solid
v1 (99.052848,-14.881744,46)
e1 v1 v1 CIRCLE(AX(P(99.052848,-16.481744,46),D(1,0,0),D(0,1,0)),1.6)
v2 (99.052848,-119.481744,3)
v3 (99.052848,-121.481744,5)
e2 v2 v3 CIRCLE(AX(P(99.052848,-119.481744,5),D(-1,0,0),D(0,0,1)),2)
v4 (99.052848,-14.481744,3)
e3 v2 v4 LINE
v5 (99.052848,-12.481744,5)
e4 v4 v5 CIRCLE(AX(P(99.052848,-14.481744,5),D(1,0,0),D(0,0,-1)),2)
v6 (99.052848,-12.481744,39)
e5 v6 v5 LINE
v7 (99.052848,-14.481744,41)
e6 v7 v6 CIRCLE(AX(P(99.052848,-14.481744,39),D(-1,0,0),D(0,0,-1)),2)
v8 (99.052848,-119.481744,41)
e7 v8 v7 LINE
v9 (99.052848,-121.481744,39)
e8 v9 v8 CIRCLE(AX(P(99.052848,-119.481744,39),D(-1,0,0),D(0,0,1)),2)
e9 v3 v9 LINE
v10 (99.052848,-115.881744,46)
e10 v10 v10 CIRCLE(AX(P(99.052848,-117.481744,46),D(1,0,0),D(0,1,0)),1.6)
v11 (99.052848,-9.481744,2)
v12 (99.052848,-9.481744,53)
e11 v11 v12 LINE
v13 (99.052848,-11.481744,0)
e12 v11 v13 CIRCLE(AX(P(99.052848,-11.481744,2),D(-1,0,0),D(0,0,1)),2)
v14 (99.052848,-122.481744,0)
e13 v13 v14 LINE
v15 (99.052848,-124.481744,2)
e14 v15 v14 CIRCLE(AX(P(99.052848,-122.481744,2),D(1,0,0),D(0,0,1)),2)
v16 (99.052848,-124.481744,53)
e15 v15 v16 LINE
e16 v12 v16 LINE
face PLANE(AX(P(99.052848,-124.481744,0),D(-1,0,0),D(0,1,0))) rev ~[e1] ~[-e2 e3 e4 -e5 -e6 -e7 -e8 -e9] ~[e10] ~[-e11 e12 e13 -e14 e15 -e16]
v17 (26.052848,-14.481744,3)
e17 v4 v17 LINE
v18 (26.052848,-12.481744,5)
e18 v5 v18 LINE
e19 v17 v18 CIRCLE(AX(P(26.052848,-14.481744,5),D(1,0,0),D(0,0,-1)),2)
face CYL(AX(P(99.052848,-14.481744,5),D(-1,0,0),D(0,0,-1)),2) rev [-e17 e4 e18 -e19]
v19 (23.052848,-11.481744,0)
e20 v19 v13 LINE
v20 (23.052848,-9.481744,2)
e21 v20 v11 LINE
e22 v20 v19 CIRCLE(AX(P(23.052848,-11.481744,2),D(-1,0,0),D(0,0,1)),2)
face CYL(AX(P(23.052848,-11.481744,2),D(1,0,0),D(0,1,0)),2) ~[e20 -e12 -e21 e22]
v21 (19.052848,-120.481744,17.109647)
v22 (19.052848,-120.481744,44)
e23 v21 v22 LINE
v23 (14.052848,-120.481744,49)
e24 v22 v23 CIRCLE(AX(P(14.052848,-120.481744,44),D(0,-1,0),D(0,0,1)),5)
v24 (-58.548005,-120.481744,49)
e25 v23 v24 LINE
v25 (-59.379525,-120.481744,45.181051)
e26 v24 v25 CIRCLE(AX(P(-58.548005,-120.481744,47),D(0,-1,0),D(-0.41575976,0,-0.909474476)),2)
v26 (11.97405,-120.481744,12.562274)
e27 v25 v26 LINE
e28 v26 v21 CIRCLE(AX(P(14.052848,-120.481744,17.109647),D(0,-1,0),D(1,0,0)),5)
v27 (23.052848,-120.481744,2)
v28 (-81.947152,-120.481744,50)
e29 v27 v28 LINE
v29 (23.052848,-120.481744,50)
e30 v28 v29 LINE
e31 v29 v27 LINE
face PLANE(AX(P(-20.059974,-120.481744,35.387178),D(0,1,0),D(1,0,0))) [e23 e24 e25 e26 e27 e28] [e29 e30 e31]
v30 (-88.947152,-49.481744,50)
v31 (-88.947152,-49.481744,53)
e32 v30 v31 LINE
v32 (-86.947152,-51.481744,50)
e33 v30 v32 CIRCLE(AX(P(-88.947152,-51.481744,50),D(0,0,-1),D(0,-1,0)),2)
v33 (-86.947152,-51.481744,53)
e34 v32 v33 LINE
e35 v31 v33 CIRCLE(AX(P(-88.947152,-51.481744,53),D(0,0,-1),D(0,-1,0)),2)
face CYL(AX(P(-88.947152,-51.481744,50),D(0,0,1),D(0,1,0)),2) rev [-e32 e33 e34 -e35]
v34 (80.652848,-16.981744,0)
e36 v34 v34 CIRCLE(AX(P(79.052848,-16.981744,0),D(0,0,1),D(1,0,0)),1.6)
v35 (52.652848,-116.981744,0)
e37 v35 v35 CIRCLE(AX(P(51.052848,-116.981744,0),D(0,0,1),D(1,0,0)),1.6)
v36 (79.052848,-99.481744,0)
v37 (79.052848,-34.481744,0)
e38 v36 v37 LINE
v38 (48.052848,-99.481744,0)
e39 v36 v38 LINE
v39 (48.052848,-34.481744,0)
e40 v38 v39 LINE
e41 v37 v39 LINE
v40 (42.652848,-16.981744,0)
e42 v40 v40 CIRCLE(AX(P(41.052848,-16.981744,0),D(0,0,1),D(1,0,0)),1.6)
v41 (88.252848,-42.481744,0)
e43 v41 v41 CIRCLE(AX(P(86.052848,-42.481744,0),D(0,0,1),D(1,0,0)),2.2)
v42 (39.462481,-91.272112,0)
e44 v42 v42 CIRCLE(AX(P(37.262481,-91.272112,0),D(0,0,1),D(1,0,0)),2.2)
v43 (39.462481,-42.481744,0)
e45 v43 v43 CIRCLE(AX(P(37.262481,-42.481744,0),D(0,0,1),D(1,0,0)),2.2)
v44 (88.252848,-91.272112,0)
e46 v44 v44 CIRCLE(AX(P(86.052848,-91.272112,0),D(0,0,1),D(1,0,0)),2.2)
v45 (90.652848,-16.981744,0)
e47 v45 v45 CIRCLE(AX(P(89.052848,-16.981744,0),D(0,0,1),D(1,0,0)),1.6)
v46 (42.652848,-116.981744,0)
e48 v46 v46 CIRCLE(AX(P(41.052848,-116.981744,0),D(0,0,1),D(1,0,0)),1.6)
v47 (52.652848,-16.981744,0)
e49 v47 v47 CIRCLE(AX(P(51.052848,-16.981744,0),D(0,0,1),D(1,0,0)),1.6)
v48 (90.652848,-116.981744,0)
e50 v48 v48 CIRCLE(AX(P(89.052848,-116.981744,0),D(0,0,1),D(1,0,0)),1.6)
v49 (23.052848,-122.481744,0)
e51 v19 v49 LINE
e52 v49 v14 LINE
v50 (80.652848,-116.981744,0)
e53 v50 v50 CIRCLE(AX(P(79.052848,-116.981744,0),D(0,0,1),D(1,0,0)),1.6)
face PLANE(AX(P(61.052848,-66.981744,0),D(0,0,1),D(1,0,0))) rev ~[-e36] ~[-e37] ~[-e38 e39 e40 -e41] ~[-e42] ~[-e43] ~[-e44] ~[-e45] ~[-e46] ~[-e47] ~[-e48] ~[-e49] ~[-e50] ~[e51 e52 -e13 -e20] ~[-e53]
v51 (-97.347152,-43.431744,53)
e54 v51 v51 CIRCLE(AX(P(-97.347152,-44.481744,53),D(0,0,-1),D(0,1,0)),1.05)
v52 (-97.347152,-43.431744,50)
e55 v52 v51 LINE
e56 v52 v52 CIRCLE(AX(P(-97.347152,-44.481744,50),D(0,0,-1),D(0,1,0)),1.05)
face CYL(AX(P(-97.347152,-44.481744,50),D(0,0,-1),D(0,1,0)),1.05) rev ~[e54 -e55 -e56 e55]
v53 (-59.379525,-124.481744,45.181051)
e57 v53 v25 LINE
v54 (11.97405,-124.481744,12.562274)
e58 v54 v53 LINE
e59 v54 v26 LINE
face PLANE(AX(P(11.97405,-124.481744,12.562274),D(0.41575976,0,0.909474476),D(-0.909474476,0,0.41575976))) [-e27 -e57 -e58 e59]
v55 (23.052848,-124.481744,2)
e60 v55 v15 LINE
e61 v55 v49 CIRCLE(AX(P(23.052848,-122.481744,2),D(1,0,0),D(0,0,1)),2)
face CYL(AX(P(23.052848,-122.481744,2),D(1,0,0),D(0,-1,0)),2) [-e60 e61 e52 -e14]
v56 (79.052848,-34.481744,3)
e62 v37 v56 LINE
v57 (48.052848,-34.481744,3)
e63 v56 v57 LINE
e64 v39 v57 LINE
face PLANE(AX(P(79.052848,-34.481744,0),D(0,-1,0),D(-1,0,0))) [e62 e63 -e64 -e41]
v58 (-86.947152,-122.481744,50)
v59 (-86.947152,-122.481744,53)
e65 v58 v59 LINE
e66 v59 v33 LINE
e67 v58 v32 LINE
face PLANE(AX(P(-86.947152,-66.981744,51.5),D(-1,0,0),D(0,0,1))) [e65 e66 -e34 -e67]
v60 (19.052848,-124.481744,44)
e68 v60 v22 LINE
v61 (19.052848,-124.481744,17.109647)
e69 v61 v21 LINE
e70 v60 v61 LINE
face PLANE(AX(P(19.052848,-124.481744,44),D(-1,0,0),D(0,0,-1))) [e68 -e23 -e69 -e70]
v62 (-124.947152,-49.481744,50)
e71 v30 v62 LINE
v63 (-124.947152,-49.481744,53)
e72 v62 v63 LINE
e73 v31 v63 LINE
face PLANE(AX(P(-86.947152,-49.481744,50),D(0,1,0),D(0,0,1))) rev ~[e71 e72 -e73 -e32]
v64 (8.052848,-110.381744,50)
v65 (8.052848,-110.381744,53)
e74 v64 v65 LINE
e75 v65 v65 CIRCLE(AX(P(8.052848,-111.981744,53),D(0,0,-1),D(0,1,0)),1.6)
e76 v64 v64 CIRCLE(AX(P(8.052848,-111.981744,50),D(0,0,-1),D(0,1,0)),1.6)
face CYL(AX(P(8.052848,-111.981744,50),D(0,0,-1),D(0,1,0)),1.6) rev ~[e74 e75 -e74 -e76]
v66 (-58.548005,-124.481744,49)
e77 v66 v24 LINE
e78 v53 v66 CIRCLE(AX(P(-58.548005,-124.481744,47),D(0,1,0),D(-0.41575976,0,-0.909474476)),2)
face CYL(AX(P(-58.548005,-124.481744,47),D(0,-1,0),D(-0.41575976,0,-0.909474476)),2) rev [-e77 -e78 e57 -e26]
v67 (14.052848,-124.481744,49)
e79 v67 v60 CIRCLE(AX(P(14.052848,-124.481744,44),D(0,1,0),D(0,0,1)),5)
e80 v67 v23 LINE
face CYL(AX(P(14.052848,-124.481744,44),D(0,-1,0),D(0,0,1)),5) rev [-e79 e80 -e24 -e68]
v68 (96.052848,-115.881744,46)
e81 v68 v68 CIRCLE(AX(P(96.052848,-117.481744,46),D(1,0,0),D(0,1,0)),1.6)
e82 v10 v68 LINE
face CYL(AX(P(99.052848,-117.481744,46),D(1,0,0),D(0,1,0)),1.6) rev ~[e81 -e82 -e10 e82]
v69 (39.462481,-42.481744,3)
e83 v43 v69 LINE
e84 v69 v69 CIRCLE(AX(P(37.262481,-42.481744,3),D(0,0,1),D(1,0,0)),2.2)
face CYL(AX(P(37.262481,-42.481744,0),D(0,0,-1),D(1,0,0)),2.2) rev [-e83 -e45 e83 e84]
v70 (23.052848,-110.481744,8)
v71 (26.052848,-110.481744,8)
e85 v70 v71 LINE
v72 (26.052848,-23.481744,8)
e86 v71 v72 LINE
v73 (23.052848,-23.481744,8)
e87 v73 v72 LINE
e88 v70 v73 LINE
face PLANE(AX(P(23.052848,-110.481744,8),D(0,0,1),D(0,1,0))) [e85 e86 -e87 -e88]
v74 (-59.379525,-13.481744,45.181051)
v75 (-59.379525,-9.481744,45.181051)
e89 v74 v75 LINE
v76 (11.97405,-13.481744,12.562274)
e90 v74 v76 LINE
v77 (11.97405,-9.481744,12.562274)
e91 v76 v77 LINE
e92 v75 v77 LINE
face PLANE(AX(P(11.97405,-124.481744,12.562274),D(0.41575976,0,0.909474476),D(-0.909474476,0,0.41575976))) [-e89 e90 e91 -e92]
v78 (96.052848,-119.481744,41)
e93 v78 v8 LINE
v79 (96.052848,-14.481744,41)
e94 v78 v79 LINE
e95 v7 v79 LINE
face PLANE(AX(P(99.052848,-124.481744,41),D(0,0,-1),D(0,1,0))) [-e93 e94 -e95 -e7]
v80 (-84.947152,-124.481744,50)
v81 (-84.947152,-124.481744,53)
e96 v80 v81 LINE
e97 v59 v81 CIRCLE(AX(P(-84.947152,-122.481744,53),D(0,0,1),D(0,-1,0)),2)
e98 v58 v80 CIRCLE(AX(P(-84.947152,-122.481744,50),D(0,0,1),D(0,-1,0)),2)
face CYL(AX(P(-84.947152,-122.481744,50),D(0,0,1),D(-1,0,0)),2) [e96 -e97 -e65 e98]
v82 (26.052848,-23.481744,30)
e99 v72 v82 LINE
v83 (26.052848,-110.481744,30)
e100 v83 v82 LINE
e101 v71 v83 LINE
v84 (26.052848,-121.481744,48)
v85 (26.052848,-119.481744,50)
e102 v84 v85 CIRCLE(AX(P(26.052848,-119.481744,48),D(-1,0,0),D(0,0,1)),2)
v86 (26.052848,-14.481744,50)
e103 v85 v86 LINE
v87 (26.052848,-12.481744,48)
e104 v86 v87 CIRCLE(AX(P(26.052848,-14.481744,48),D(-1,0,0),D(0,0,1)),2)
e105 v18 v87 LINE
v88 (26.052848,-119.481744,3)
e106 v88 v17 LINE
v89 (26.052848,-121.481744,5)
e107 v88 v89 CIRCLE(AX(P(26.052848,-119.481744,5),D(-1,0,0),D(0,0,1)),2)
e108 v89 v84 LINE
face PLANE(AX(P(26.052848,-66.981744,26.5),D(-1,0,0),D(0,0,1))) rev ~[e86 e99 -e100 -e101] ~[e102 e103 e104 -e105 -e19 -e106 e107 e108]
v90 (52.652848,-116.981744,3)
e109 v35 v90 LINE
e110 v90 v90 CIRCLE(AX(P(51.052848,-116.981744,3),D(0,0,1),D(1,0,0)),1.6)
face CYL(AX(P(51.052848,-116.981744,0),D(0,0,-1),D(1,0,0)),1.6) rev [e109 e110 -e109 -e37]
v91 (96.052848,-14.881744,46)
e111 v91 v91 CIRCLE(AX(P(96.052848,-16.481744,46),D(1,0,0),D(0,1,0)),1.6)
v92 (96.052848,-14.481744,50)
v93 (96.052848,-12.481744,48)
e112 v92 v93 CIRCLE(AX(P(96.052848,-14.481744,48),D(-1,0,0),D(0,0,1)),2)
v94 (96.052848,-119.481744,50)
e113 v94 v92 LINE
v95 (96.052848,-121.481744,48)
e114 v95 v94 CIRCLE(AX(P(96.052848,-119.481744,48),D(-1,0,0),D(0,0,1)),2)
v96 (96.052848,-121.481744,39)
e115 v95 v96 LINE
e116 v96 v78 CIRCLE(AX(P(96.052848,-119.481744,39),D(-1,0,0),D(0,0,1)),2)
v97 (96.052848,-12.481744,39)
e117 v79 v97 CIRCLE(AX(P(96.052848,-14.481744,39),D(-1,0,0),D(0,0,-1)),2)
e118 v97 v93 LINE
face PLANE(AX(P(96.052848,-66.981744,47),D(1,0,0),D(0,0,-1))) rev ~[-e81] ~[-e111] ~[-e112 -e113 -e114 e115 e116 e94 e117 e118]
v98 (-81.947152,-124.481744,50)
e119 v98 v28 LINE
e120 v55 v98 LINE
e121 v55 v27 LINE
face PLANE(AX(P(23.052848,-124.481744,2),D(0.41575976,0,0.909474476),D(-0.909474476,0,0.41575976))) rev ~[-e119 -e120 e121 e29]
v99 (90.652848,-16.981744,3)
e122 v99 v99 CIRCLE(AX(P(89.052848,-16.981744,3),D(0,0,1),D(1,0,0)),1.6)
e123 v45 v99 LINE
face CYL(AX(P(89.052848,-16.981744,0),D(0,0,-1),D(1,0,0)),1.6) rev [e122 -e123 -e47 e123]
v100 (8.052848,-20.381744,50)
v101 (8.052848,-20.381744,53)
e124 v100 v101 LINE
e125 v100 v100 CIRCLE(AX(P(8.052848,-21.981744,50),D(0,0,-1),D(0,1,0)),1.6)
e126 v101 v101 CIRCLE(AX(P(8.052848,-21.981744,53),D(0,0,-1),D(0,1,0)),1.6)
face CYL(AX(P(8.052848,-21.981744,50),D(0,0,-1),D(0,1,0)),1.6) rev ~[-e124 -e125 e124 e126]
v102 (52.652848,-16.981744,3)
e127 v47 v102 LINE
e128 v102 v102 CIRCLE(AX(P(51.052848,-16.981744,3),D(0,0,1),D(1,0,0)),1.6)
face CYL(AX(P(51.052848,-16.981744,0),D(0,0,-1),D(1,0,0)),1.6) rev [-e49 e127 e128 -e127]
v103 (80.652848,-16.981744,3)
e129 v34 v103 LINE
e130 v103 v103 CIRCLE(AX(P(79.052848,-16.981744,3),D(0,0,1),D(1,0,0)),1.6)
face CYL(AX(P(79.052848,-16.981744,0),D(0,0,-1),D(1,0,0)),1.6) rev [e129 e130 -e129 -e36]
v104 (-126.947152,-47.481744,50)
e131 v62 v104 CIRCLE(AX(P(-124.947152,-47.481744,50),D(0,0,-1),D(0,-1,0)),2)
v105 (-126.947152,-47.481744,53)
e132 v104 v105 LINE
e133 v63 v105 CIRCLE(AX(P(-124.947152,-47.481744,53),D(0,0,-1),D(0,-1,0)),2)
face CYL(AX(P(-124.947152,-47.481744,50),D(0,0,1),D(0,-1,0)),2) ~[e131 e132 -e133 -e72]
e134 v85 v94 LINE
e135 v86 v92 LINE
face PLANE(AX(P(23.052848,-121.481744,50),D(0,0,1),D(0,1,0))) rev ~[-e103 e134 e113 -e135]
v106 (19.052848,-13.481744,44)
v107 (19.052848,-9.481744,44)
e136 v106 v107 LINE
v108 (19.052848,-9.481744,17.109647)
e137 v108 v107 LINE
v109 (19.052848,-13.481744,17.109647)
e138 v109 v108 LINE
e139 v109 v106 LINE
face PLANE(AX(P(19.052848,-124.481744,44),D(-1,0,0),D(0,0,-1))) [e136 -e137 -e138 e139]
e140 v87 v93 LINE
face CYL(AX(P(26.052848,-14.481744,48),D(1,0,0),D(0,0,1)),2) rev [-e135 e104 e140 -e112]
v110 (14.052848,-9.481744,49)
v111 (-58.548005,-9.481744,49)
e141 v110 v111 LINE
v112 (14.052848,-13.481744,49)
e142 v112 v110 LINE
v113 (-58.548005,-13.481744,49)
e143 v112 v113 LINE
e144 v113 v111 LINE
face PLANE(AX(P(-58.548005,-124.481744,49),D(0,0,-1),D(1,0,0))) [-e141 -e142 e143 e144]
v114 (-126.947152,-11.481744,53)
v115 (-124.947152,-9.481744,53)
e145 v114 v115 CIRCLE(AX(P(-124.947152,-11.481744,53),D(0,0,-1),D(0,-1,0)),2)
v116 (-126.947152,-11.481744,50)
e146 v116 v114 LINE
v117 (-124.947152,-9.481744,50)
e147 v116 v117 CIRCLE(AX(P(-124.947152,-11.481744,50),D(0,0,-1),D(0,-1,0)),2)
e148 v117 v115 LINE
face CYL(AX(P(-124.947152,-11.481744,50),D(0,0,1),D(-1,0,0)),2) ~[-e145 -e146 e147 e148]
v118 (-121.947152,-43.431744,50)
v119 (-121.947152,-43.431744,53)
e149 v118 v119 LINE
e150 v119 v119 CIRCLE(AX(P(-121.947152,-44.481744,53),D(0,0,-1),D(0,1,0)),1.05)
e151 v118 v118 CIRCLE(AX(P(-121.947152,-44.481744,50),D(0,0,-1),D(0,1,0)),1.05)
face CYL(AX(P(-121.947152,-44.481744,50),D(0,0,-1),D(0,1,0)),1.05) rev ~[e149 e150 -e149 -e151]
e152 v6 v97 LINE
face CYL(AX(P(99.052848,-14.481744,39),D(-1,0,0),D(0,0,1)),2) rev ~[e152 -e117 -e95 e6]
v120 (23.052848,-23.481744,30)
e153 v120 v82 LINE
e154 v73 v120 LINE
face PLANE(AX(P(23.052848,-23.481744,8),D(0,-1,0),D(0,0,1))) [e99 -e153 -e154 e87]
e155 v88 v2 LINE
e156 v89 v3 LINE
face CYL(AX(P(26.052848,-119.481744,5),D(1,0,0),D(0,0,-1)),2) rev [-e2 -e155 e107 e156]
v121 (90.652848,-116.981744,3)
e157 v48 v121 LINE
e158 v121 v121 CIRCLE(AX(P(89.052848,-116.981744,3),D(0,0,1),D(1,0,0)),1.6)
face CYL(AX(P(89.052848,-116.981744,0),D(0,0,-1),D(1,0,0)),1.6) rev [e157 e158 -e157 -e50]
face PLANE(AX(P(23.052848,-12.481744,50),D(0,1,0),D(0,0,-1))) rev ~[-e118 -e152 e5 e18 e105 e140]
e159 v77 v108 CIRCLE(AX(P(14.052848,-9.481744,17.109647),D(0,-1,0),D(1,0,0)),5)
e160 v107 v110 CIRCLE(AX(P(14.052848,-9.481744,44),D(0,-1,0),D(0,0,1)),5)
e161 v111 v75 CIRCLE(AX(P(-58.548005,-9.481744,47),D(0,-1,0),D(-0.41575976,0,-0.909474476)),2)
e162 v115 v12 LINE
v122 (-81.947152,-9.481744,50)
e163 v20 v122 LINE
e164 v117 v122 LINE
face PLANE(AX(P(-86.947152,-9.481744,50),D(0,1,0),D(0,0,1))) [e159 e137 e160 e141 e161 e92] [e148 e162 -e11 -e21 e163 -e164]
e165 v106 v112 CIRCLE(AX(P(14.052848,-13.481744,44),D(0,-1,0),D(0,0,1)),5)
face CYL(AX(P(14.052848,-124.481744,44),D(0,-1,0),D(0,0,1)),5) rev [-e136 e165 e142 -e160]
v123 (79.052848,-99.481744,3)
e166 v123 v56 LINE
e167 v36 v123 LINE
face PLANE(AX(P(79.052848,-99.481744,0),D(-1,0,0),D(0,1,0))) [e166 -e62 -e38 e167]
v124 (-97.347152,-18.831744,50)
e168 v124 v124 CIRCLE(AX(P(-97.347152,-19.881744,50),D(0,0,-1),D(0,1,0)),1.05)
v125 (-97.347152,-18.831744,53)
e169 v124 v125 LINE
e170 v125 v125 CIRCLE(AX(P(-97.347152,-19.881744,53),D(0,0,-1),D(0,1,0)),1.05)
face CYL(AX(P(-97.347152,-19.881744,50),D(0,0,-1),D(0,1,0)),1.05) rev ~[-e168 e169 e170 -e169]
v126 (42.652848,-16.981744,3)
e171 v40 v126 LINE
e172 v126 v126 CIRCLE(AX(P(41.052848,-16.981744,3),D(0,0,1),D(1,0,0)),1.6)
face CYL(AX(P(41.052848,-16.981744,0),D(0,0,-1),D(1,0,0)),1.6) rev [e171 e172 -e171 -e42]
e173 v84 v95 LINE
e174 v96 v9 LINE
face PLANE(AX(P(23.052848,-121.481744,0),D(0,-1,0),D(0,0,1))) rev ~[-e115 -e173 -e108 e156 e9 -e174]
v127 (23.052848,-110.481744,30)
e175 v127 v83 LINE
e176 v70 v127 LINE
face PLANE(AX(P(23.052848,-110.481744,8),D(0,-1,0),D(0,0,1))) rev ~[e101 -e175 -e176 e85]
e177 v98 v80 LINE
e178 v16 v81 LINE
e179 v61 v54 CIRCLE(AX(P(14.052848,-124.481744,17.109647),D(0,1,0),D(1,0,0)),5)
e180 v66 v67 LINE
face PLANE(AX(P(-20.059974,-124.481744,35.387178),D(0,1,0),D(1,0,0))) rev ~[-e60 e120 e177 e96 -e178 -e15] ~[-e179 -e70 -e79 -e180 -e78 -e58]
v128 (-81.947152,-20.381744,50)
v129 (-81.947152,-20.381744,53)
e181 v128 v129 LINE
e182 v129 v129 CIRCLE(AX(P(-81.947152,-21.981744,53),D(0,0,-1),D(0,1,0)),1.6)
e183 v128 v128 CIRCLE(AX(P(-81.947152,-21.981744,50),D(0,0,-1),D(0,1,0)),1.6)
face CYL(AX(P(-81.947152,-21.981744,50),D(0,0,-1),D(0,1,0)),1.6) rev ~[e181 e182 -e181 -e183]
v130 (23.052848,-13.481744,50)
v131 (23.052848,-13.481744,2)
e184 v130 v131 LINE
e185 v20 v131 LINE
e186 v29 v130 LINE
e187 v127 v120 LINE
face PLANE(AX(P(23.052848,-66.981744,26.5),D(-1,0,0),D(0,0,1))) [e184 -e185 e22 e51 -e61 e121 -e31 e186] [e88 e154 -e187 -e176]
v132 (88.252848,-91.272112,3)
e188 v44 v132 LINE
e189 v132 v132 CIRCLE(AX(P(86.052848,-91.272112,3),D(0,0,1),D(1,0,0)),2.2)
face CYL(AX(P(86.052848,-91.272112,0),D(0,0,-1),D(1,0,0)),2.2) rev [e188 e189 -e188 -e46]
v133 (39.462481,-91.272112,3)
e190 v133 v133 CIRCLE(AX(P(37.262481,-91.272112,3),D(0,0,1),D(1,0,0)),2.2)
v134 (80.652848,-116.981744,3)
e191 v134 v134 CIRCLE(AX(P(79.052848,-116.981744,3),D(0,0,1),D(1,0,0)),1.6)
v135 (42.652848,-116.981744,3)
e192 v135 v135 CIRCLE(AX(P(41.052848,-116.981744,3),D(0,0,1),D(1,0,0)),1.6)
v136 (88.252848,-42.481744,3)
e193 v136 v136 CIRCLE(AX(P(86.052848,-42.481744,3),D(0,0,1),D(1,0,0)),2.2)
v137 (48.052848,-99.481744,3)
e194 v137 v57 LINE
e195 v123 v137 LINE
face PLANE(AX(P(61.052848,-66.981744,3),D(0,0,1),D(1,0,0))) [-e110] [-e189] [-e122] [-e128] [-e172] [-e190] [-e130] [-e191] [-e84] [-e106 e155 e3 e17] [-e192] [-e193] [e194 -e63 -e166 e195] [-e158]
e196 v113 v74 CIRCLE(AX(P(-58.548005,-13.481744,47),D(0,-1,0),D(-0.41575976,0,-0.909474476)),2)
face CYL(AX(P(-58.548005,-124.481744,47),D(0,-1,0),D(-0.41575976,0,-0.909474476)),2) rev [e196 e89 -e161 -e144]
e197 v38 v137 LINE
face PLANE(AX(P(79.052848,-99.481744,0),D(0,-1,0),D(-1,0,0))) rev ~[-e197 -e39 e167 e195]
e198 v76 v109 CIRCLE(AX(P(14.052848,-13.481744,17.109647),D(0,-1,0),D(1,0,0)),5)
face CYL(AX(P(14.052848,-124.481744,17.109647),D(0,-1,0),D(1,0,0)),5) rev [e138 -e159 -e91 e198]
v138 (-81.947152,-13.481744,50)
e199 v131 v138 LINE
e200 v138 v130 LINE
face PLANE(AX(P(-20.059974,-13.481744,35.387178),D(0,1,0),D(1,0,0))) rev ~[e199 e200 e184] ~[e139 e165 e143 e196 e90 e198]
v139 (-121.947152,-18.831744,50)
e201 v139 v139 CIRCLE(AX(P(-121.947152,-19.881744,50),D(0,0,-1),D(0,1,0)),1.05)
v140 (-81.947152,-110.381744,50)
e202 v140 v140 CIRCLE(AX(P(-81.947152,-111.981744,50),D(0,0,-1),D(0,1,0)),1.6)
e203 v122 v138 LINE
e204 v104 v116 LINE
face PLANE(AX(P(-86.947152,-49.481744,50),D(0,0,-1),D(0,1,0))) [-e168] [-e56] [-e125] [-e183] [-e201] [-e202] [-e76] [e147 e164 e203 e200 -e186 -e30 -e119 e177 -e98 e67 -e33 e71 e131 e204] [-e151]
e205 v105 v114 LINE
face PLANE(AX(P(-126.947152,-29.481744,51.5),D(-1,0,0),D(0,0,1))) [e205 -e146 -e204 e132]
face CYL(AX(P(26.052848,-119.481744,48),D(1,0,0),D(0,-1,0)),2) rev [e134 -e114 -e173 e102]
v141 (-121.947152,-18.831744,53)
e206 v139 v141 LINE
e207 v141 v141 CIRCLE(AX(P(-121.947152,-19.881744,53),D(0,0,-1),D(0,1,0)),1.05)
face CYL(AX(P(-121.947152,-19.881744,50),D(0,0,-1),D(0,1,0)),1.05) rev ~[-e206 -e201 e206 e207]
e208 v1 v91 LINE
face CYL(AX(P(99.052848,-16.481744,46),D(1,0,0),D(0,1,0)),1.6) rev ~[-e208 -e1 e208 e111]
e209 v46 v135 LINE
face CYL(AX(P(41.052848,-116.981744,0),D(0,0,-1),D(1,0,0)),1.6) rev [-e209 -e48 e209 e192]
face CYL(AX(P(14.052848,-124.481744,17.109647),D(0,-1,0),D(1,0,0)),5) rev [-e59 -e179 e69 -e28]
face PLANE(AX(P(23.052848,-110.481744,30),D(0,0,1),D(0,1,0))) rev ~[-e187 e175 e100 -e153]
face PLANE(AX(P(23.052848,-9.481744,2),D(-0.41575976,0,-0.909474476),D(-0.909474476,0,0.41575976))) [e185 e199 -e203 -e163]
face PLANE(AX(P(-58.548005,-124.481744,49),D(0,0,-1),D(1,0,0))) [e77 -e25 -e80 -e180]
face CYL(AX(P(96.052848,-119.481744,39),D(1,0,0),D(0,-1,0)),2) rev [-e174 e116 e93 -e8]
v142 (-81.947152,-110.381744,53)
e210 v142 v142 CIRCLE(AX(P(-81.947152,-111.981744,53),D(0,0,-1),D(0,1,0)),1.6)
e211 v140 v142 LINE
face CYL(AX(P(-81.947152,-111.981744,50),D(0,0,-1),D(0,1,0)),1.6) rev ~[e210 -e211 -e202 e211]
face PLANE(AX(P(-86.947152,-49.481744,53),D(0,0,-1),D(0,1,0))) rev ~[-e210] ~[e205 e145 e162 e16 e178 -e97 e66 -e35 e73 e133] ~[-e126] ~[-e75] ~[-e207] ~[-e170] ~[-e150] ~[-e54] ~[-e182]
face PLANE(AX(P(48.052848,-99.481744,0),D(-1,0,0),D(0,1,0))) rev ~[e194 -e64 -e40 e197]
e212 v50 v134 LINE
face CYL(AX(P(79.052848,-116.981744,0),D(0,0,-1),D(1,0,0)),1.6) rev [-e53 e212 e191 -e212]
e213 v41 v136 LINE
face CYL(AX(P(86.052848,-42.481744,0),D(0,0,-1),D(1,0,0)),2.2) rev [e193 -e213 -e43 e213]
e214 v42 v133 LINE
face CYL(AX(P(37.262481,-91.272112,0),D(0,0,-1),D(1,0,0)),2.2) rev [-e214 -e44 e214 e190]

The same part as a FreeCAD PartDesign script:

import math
import FreeCAD as App
import Part
import Sketcher
Q = App.Units.Quantity


def edges_at(feature, points):
    """Names of the edges that pass closest to the given points."""
    edges = feature.Shape.Edges
    near = lambda p: min(range(len(edges)), key=lambda i: edges[i].distToShape(Part.Vertex(*p))[0])
    return sorted({f"Edge{near(p) + 1}" for p in points})


def add_polygon(sketch, points):
    """Adds a closed chain of lines whose ends are joined by coincident constraints."""
    first, n = sketch.GeometryCount, len(points)
    for a, b in zip(points, points[1:] + points[:1]):
        sketch.addGeometry(Part.LineSegment(App.Vector(*a, 0), App.Vector(*b, 0)), False)
    for i in range(n):
        sketch.addConstraint(Sketcher.Constraint("Coincident", first + i, 2, first + (i + 1) % n, 1))

doc = App.newDocument("Part")
body = doc.addObject("PartDesign::Body", "Body")

# Sketch on XY plane
sketch1 = body.newObject("Sketcher::SketchObject", "Sketch")
sketch1.AttachmentSupport = (doc.getObject("XY_Plane"), [""])
sketch1.MapMode = "FlatFace"
add_polygon(sketch1, [(23.1, -9.5), (23.1, -124.5), (99.1, -124.5), (99.1, -9.5)])  # lines 0-3
sketch1.addGeometry(Part.Circle(App.Vector(41.1, -117, 0), App.Vector(0, 0, 1), 1.6), False)  # 4
sketch1.addGeometry(Part.Circle(App.Vector(51.1, -117, 0), App.Vector(0, 0, 1), 1.6), False)  # 5
sketch1.addGeometry(Part.Circle(App.Vector(37.3, -91.3, 0), App.Vector(0, 0, 1), 2.2), False)  # 6
sketch1.addGeometry(Part.Circle(App.Vector(79.1, -117, 0), App.Vector(0, 0, 1), 1.6), False)  # 7
sketch1.addGeometry(Part.Circle(App.Vector(89.1, -117, 0), App.Vector(0, 0, 1), 1.6), False)  # 8
sketch1.addGeometry(Part.Circle(App.Vector(86.1, -91.3, 0), App.Vector(0, 0, 1), 2.2), False)  # 9
sketch1.addGeometry(Part.Circle(App.Vector(37.3, -42.5, 0), App.Vector(0, 0, 1), 2.2), False)  # 10
sketch1.addGeometry(Part.Circle(App.Vector(41.1, -17, 0), App.Vector(0, 0, 1), 1.6), False)  # 11
sketch1.addGeometry(Part.Circle(App.Vector(51.1, -17, 0), App.Vector(0, 0, 1), 1.6), False)  # 12
sketch1.addGeometry(Part.Circle(App.Vector(86.1, -42.5, 0), App.Vector(0, 0, 1), 2.2), False)  # 13
sketch1.addGeometry(Part.Circle(App.Vector(79.1, -17, 0), App.Vector(0, 0, 1), 1.6), False)  # 14
sketch1.addGeometry(Part.Circle(App.Vector(89.1, -17, 0), App.Vector(0, 0, 1), 1.6), False)  # 15
sketch1.addConstraint(Sketcher.Constraint("Vertical", 0))
sketch1.addConstraint(Sketcher.Constraint("Horizontal", 1))
sketch1.addConstraint(Sketcher.Constraint("Vertical", 2))
sketch1.addConstraint(Sketcher.Constraint("Horizontal", 3))
sketch1.addConstraint(Sketcher.Constraint("Equal", 4, 5))
sketch1.addConstraint(Sketcher.Constraint("Equal", 5, 7))
sketch1.addConstraint(Sketcher.Constraint("Equal", 7, 8))
sketch1.addConstraint(Sketcher.Constraint("Equal", 6, 9))
sketch1.addConstraint(Sketcher.Constraint("Equal", 9, 10))
sketch1.addConstraint(Sketcher.Constraint("Equal", 8, 11))
sketch1.addConstraint(Sketcher.Constraint("Equal", 11, 12))
sketch1.addConstraint(Sketcher.Constraint("Equal", 10, 13))
sketch1.addConstraint(Sketcher.Constraint("Equal", 12, 14))
sketch1.addConstraint(Sketcher.Constraint("Equal", 14, 15))
sketch1.addConstraint(Sketcher.Constraint("Horizontal", 4, 3, 5, 3))
sketch1.addConstraint(Sketcher.Constraint("Horizontal", 5, 3, 7, 3))
sketch1.addConstraint(Sketcher.Constraint("Horizontal", 7, 3, 8, 3))
sketch1.addConstraint(Sketcher.Constraint("Horizontal", 6, 3, 9, 3))
sketch1.addConstraint(Sketcher.Constraint("Horizontal", 11, 3, 12, 3))
sketch1.addConstraint(Sketcher.Constraint("Horizontal", 10, 3, 13, 3))
sketch1.addConstraint(Sketcher.Constraint("Horizontal", 12, 3, 14, 3))
sketch1.addConstraint(Sketcher.Constraint("Horizontal", 14, 3, 15, 3))
sketch1.addConstraint(Sketcher.Constraint("Vertical", 6, 3, 10, 3))
sketch1.addConstraint(Sketcher.Constraint("Vertical", 4, 3, 11, 3))
sketch1.addConstraint(Sketcher.Constraint("Vertical", 5, 3, 12, 3))
sketch1.addConstraint(Sketcher.Constraint("Vertical", 9, 3, 13, 3))
sketch1.addConstraint(Sketcher.Constraint("Vertical", 7, 3, 14, 3))
sketch1.addConstraint(Sketcher.Constraint("Vertical", 8, 3, 15, 3))
sketch1.addConstraint(Sketcher.Constraint("Diameter", 4, Q("3.2 mm")))
sketch1.addConstraint(Sketcher.Constraint("Diameter", 6, Q("4.4 mm")))
sketch1.addConstraint(Sketcher.Constraint("DistanceX", 1, 1, 1, 2, Q("76 mm")))
sketch1.addConstraint(Sketcher.Constraint("DistanceY", 0, 2, 0, 1, Q("115 mm")))
sketch1.addConstraint(Sketcher.Constraint("DistanceX", 4, 3, 5, 3, Q("10 mm")))
sketch1.addConstraint(Sketcher.Constraint("DistanceX", 5, 3, 7, 3, Q("28 mm")))
sketch1.addConstraint(Sketcher.Constraint("DistanceX", 7, 3, 8, 3, Q("10 mm")))
sketch1.addConstraint(Sketcher.Constraint("DistanceX", 9, 3, 8, 3, Q("3 mm")))
sketch1.addConstraint(Sketcher.Constraint("DistanceY", 4, 3, 11, 3, Q("100 mm")))
sketch1.addConstraint(Sketcher.Constraint("DistanceX", 0, 2, 4, 3, Q("18 mm")))
sketch1.addConstraint(Sketcher.Constraint("DistanceY", 13, 3, 2, 2, Q("33 mm")))
sketch1.addConstraint(Sketcher.Constraint("DistanceY", 4, 3, 10, 3, Q("74.5 mm")))
sketch1.addConstraint(Sketcher.Constraint("DistanceX", -1, 1, 4, 3, Q("41.052848 mm")))
sketch1.addConstraint(Sketcher.Constraint("DistanceX", -1, 1, 6, 3, Q("37.262481 mm")))
sketch1.addConstraint(Sketcher.Constraint("DistanceY", 6, 3, -1, 1, Q("91.272112 mm")))
sketch1.addConstraint(Sketcher.Constraint("DistanceY", 4, 3, -1, 1, Q("116.981744 mm")))
pad1 = body.newObject("PartDesign::Pad", "Pad")
pad1.Profile = sketch1
pad1.Length = 3

# Sketch on YZ plane
sketch2 = body.newObject("Sketcher::SketchObject", "Sketch001")
sketch2.AttachmentSupport = (doc.getObject("YZ_Plane"), [""])
sketch2.MapMode = "FlatFace"
sketch2.AttachmentOffset = App.Placement(App.Vector(0, 0, 23.052848), App.Rotation())
add_polygon(sketch2, [(-9.5, 53), (-9.5, 0), (-12.5, 0), (-12.5, 50), (-121.5, 50), (-121.5, 0), (-124.5, 0), (-124.5, 53)])  # lines 0-7
sketch2.addConstraint(Sketcher.Constraint("Vertical", 0))
sketch2.addConstraint(Sketcher.Constraint("Horizontal", 1))
sketch2.addConstraint(Sketcher.Constraint("Vertical", 2))
sketch2.addConstraint(Sketcher.Constraint("Horizontal", 3))
sketch2.addConstraint(Sketcher.Constraint("Vertical", 4))
sketch2.addConstraint(Sketcher.Constraint("Horizontal", 5))
sketch2.addConstraint(Sketcher.Constraint("Vertical", 6))
sketch2.addConstraint(Sketcher.Constraint("Horizontal", 7))
sketch2.addConstraint(Sketcher.Constraint("PointOnObject", 0, 2, -1))
sketch2.addConstraint(Sketcher.Constraint("PointOnObject", 4, 2, -1))
sketch2.addConstraint(Sketcher.Constraint("Equal", 1, 5))
sketch2.addConstraint(Sketcher.Constraint("DistanceX", 1, 2, 1, 1, Q("3 mm")))
sketch2.addConstraint(Sketcher.Constraint("DistanceX", 3, 2, 3, 1, Q("109 mm")))
sketch2.addConstraint(Sketcher.Constraint("DistanceY", 0, 2, 0, 1, Q("53 mm")))
sketch2.addConstraint(Sketcher.Constraint("DistanceY", 2, 1, 2, 2, Q("50 mm")))
sketch2.addConstraint(Sketcher.Constraint("DistanceX", 0, 2, -1, 1, Q("9.481744 mm")))
pad2 = body.newObject("PartDesign::Pad", "Pad001")
pad2.Profile = sketch2
pad2.Length = 76

# Sketch on YZ plane
sketch3 = body.newObject("Sketcher::SketchObject", "Sketch002")
sketch3.AttachmentSupport = (doc.getObject("YZ_Plane"), [""])
sketch3.MapMode = "FlatFace"
sketch3.AttachmentOffset = App.Placement(App.Vector(0, 0, 23.052848), App.Rotation())
add_polygon(sketch3, [(-12, 3), (-121, 3), (-121, 50), (-12, 50)])  # lines 0-3
sketch3.addConstraint(Sketcher.Constraint("Horizontal", 0))
sketch3.addConstraint(Sketcher.Constraint("Vertical", 1))
sketch3.addConstraint(Sketcher.Constraint("Horizontal", 2))
sketch3.addConstraint(Sketcher.Constraint("Vertical", 3))
sketch3.addConstraint(Sketcher.Constraint("DistanceX", 0, 2, 0, 1, Q("109 mm")))
sketch3.addConstraint(Sketcher.Constraint("DistanceY", 1, 1, 1, 2, Q("47 mm")))
sketch3.addConstraint(Sketcher.Constraint("DistanceY", -1, 1, 0, 2, Q("3 mm")))
sketch3.addConstraint(Sketcher.Constraint("DistanceX", 0, 2, -1, 1, Q("121.481744 mm")))
pad3 = body.newObject("PartDesign::Pad", "Pad002")
pad3.Profile = sketch3
pad3.Length = 3

# Sketch on YZ plane
sketch4 = body.newObject("Sketcher::SketchObject", "Sketch003")
sketch4.AttachmentSupport = (doc.getObject("YZ_Plane"), [""])
sketch4.MapMode = "FlatFace"
sketch4.AttachmentOffset = App.Placement(App.Vector(0, 0, 99.052848), App.Rotation())
add_polygon(sketch4, [(-9.5, 53), (-124.5, 53), (-124.5, 41), (-9.5, 41)])  # lines 0-3
sketch4.addGeometry(Part.Circle(App.Vector(-117.5, 46, 0), App.Vector(0, 0, 1), 1.6), False)  # 4
sketch4.addGeometry(Part.Circle(App.Vector(-16.5, 46, 0), App.Vector(0, 0, 1), 1.6), False)  # 5
sketch4.addConstraint(Sketcher.Constraint("Horizontal", 0))
sketch4.addConstraint(Sketcher.Constraint("Vertical", 1))
sketch4.addConstraint(Sketcher.Constraint("Horizontal", 2))
sketch4.addConstraint(Sketcher.Constraint("Vertical", 3))
sketch4.addConstraint(Sketcher.Constraint("Equal", 4, 5))
sketch4.addConstraint(Sketcher.Constraint("Horizontal", 4, 3, 5, 3))
sketch4.addConstraint(Sketcher.Constraint("Diameter", 4, Q("3.2 mm")))
sketch4.addConstraint(Sketcher.Constraint("DistanceX", 0, 2, 0, 1, Q("115 mm")))
sketch4.addConstraint(Sketcher.Constraint("DistanceY", 1, 2, 1, 1, Q("12 mm")))
sketch4.addConstraint(Sketcher.Constraint("DistanceY", -1, 1, 4, 3, Q("46 mm")))
sketch4.addConstraint(Sketcher.Constraint("DistanceY", -1, 1, 0, 2, Q("53 mm")))
sketch4.addConstraint(Sketcher.Constraint("DistanceX", 4, 3, 5, 3, Q("101 mm")))
sketch4.addConstraint(Sketcher.Constraint("DistanceX", 0, 2, 4, 3, Q("7 mm")))
sketch4.addConstraint(Sketcher.Constraint("DistanceX", 4, 3, -1, 1, Q("117.481744 mm")))
pad4 = body.newObject("PartDesign::Pad", "Pad003")
pad4.Profile = sketch4
pad4.Length = 3
pad4.Reversed = True
doc.recompute()

fillet = body.newObject("PartDesign::Fillet", "Fillet")
fillet.Base = (pad4, edges_at(pad4, [
    (62.553, -12.482, 3),
    (61.053, -12.482, 50),
    (61.053, -121.482, 50),
    (97.553, -121.482, 41),
    (97.553, -12.482, 41),
    (61.053, -9.482, 0),
    (61.053, -124.482, 0),
    (62.553, -121.482, 3),
]))
fillet.Radius = 2

# Sketch on YZ plane
sketch5 = body.newObject("Sketcher::SketchObject", "Sketch004")
sketch5.AttachmentSupport = (doc.getObject("YZ_Plane"), [""])
sketch5.MapMode = "FlatFace"
sketch5.AttachmentOffset = App.Placement(App.Vector(0, 0, 23.052848), App.Rotation())
add_polygon(sketch5, [(-9.5, 50), (-124.5, 50), (-124.5, 53), (-9.5, 53)])  # lines 0-3
sketch5.addConstraint(Sketcher.Constraint("Horizontal", 0))
sketch5.addConstraint(Sketcher.Constraint("Vertical", 1))
sketch5.addConstraint(Sketcher.Constraint("Horizontal", 2))
sketch5.addConstraint(Sketcher.Constraint("Vertical", 3))
sketch5.addConstraint(Sketcher.Constraint("DistanceX", 0, 2, 0, 1, Q("115 mm")))
sketch5.addConstraint(Sketcher.Constraint("DistanceY", 1, 1, 1, 2, Q("3 mm")))
sketch5.addConstraint(Sketcher.Constraint("DistanceY", -1, 1, 0, 2, Q("50 mm")))
sketch5.addConstraint(Sketcher.Constraint("DistanceX", 0, 2, -1, 1, Q("124.481744 mm")))
pad5 = body.newObject("PartDesign::Pad", "Pad004")
pad5.Profile = sketch5
pad5.Length = 110
pad5.Reversed = True

# Sketch on XY plane
sketch6 = body.newObject("Sketcher::SketchObject", "Sketch005")
sketch6.AttachmentSupport = (doc.getObject("XY_Plane"), [""])
sketch6.MapMode = "FlatFace"
sketch6.AttachmentOffset = App.Placement(App.Vector(0, 0, 50), App.Rotation())
sketch6.addGeometry(Part.Circle(App.Vector(-81.9, -22, 0), App.Vector(0, 0, 1), 1.6), False)
sketch6.addGeometry(Part.Circle(App.Vector(-81.9, -112, 0), App.Vector(0, 0, 1), 1.6), False)
sketch6.addGeometry(Part.Circle(App.Vector(8.1, -22, 0), App.Vector(0, 0, 1), 1.6), False)
sketch6.addGeometry(Part.Circle(App.Vector(8.1, -112, 0), App.Vector(0, 0, 1), 1.6), False)
sketch6.addConstraint(Sketcher.Constraint("Equal", 0, 1))
sketch6.addConstraint(Sketcher.Constraint("Equal", 1, 2))
sketch6.addConstraint(Sketcher.Constraint("Equal", 2, 3))
sketch6.addConstraint(Sketcher.Constraint("Horizontal", 0, 3, 2, 3))
sketch6.addConstraint(Sketcher.Constraint("Horizontal", 1, 3, 3, 3))
sketch6.addConstraint(Sketcher.Constraint("Vertical", 0, 3, 1, 3))
sketch6.addConstraint(Sketcher.Constraint("Vertical", 2, 3, 3, 3))
sketch6.addConstraint(Sketcher.Constraint("Diameter", 0, Q("3.2 mm")))
sketch6.addConstraint(Sketcher.Constraint("DistanceY", 1, 3, 0, 3, Q("90 mm")))
sketch6.addConstraint(Sketcher.Constraint("DistanceX", 0, 3, 2, 3, Q("90 mm")))
sketch6.addConstraint(Sketcher.Constraint("DistanceX", 0, 3, -1, 1, Q("81.947152 mm")))
sketch6.addConstraint(Sketcher.Constraint("DistanceY", 0, 3, -1, 1, Q("21.981744 mm")))
pocket1 = body.newObject("PartDesign::Pocket", "Pocket")
pocket1.Profile = sketch6
pocket1.Length = 110
pocket1.Reversed = True

# Sketch on XY plane
sketch7 = body.newObject("Sketcher::SketchObject", "Sketch006")
sketch7.AttachmentSupport = (doc.getObject("XY_Plane"), [""])
sketch7.MapMode = "FlatFace"
add_polygon(sketch7, [(79, -34), (79, -99), (48, -99), (48, -34)])  # lines 0-3
sketch7.addConstraint(Sketcher.Constraint("Vertical", 0))
sketch7.addConstraint(Sketcher.Constraint("Horizontal", 1))
sketch7.addConstraint(Sketcher.Constraint("Vertical", 2))
sketch7.addConstraint(Sketcher.Constraint("Horizontal", 3))
sketch7.addConstraint(Sketcher.Constraint("DistanceX", 1, 2, 1, 1, Q("31 mm")))
sketch7.addConstraint(Sketcher.Constraint("DistanceY", 0, 2, 0, 1, Q("65 mm")))
sketch7.addConstraint(Sketcher.Constraint("DistanceX", -1, 1, 0, 2, Q("79.052848 mm")))
sketch7.addConstraint(Sketcher.Constraint("DistanceY", 0, 2, -1, 1, Q("99.481744 mm")))
pocket2 = body.newObject("PartDesign::Pocket", "Pocket001")
pocket2.Profile = sketch7
pocket2.Length = 3
pocket2.Reversed = True

# Sketch on XZ plane
sketch8 = body.newObject("Sketcher::SketchObject", "Sketch007")
sketch8.AttachmentSupport = (doc.getObject("XZ_Plane"), [""])
sketch8.MapMode = "FlatFace"
sketch8.AttachmentOffset = App.Placement(App.Vector(0, 0, 124.481744), App.Rotation())
add_polygon(sketch8, [(-82, 50), (23, 2), (23, 50)])  # lines 0-2
sketch8.addConstraint(Sketcher.Constraint("Vertical", 1))
sketch8.addConstraint(Sketcher.Constraint("Horizontal", 2))
sketch8.addConstraint(Sketcher.Constraint("DistanceX", 2, 2, 2, 1, Q("105 mm")))
sketch8.addConstraint(Sketcher.Constraint("DistanceY", 1, 1, 1, 2, Q("48 mm")))
sketch8.addConstraint(Sketcher.Constraint("DistanceY", -1, 1, 0, 2, Q("2 mm")))
sketch8.addConstraint(Sketcher.Constraint("DistanceX", -1, 1, 0, 2, Q("23.052848 mm")))
pad6 = body.newObject("PartDesign::Pad", "Pad005")
pad6.Profile = sketch8
pad6.Length = 4
pad6.Reversed = True

# Sketch on XZ plane
sketch9 = body.newObject("Sketcher::SketchObject", "Sketch008")
sketch9.AttachmentSupport = (doc.getObject("XZ_Plane"), [""])
sketch9.MapMode = "FlatFace"
sketch9.AttachmentOffset = App.Placement(App.Vector(0, 0, 9.481744), App.Rotation())
add_polygon(sketch9, [(23, 2), (-82, 50), (23, 50)])  # lines 0-2
sketch9.addConstraint(Sketcher.Constraint("Horizontal", 1))
sketch9.addConstraint(Sketcher.Constraint("Vertical", 2))
sketch9.addConstraint(Sketcher.Constraint("DistanceX", 1, 1, 1, 2, Q("105 mm")))
sketch9.addConstraint(Sketcher.Constraint("DistanceY", 2, 2, 2, 1, Q("48 mm")))
sketch9.addConstraint(Sketcher.Constraint("DistanceY", -1, 1, 0, 2, Q("50 mm")))
sketch9.addConstraint(Sketcher.Constraint("DistanceX", 0, 2, -1, 1, Q("81.947152 mm")))
pad7 = body.newObject("PartDesign::Pad", "Pad006")
pad7.Profile = sketch9
pad7.Length = 4

# Sketch on XZ plane
sketch10 = body.newObject("Sketcher::SketchObject", "Sketch009")
sketch10.AttachmentSupport = (doc.getObject("XZ_Plane"), [""])
sketch10.MapMode = "FlatFace"
sketch10.AttachmentOffset = App.Placement(App.Vector(0, 0, 124.481744), App.Rotation())
sketch10.addGeometry(Part.LineSegment(App.Vector(14.1, 49, 0), App.Vector(-58.5, 49, 0)), False)
sketch10.addGeometry(Part.ArcOfCircle(Part.Circle(App.Vector(-58.5, 47, 0), App.Vector(0, 0, 1), 2), math.radians(90), math.radians(245)), False)
sketch10.addGeometry(Part.LineSegment(App.Vector(-59.4, 45.2, 0), App.Vector(12, 12.6, 0)), False)
sketch10.addGeometry(Part.ArcOfCircle(Part.Circle(App.Vector(14.1, 17.1, 0), App.Vector(0, 0, 1), 5), math.radians(-115), math.radians(0)), False)
sketch10.addGeometry(Part.LineSegment(App.Vector(19.1, 17.1, 0), App.Vector(19.1, 44, 0)), False)
sketch10.addGeometry(Part.ArcOfCircle(Part.Circle(App.Vector(14.1, 44, 0), App.Vector(0, 0, 1), 5), math.radians(0), math.radians(90)), False)
sketch10.addConstraint(Sketcher.Constraint("Tangent", 0, 2, 1, 1))
sketch10.addConstraint(Sketcher.Constraint("Tangent", 1, 2, 2, 1))
sketch10.addConstraint(Sketcher.Constraint("Tangent", 2, 2, 3, 1))
sketch10.addConstraint(Sketcher.Constraint("Tangent", 3, 2, 4, 1))
sketch10.addConstraint(Sketcher.Constraint("Tangent", 4, 2, 5, 1))
sketch10.addConstraint(Sketcher.Constraint("Tangent", 5, 2, 0, 1))
sketch10.addConstraint(Sketcher.Constraint("Horizontal", 0))
sketch10.addConstraint(Sketcher.Constraint("Vertical", 4))
sketch10.addConstraint(Sketcher.Constraint("Equal", 3, 5))
sketch10.addConstraint(Sketcher.Constraint("Radius", 1, Q("2 mm")))
sketch10.addConstraint(Sketcher.Constraint("Radius", 3, Q("5 mm")))
sketch10.addConstraint(Sketcher.Constraint("DistanceY", -1, 1, 1, 3, Q("47 mm")))
sketch10.addConstraint(Sketcher.Constraint("DistanceX", 2, 2, 3, 3, Q("2.078799 mm")))
sketch10.addConstraint(Sketcher.Constraint("Distance", 2, Q("78.45583 mm")))
sketch10.addConstraint(Sketcher.Constraint("DistanceX", -1, 1, 3, 3, Q("14.052848 mm")))
pocket3 = body.newObject("PartDesign::Pocket", "Pocket002")
pocket3.Profile = sketch10
pocket3.Length = 124

# Sketch on YZ plane
sketch11 = body.newObject("Sketcher::SketchObject", "Sketch010")
sketch11.AttachmentSupport = (doc.getObject("YZ_Plane"), [""])
sketch11.MapMode = "FlatFace"
sketch11.AttachmentOffset = App.Placement(App.Vector(0, 0, -86.947152), App.Rotation())
add_polygon(sketch11, [(-9.5, 50), (-49.5, 50), (-49.5, 53), (-9.5, 53)])  # lines 0-3
sketch11.addConstraint(Sketcher.Constraint("Horizontal", 0))
sketch11.addConstraint(Sketcher.Constraint("Vertical", 1))
sketch11.addConstraint(Sketcher.Constraint("Horizontal", 2))
sketch11.addConstraint(Sketcher.Constraint("Vertical", 3))
sketch11.addConstraint(Sketcher.Constraint("DistanceX", 0, 2, 0, 1, Q("40 mm")))
sketch11.addConstraint(Sketcher.Constraint("DistanceY", 1, 1, 1, 2, Q("3 mm")))
sketch11.addConstraint(Sketcher.Constraint("DistanceY", -1, 1, 0, 2, Q("50 mm")))
sketch11.addConstraint(Sketcher.Constraint("DistanceX", 0, 2, -1, 1, Q("49.481744 mm")))
pad8 = body.newObject("PartDesign::Pad", "Pad007")
pad8.Profile = sketch11
pad8.Length = 40
pad8.Reversed = True

# Sketch on XY plane
sketch12 = body.newObject("Sketcher::SketchObject", "Sketch011")
sketch12.AttachmentSupport = (doc.getObject("XY_Plane"), [""])
sketch12.MapMode = "FlatFace"
sketch12.AttachmentOffset = App.Placement(App.Vector(0, 0, 50), App.Rotation())
sketch12.addGeometry(Part.Circle(App.Vector(-121.9, -44.5, 0), App.Vector(0, 0, 1), 1.1), False)
sketch12.addGeometry(Part.Circle(App.Vector(-121.9, -19.9, 0), App.Vector(0, 0, 1), 1.1), False)
sketch12.addGeometry(Part.Circle(App.Vector(-97.3, -19.9, 0), App.Vector(0, 0, 1), 1.1), False)
sketch12.addGeometry(Part.Circle(App.Vector(-97.3, -44.5, 0), App.Vector(0, 0, 1), 1.1), False)
sketch12.addConstraint(Sketcher.Constraint("Equal", 0, 1))
sketch12.addConstraint(Sketcher.Constraint("Equal", 1, 2))
sketch12.addConstraint(Sketcher.Constraint("Equal", 2, 3))
sketch12.addConstraint(Sketcher.Constraint("Horizontal", 1, 3, 2, 3))
sketch12.addConstraint(Sketcher.Constraint("Horizontal", 0, 3, 3, 3))
sketch12.addConstraint(Sketcher.Constraint("Vertical", 0, 3, 1, 3))
sketch12.addConstraint(Sketcher.Constraint("Vertical", 2, 3, 3, 3))
sketch12.addConstraint(Sketcher.Constraint("Diameter", 0, Q("2.1 mm")))
sketch12.addConstraint(Sketcher.Constraint("DistanceY", 0, 3, 1, 3, Q("24.6 mm")))
sketch12.addConstraint(Sketcher.Constraint("DistanceX", 1, 3, 2, 3, Q("24.6 mm")))
sketch12.addConstraint(Sketcher.Constraint("DistanceX", 0, 3, -1, 1, Q("121.947152 mm")))
sketch12.addConstraint(Sketcher.Constraint("DistanceY", 0, 3, -1, 1, Q("44.481744 mm")))
pocket4 = body.newObject("PartDesign::Pocket", "Pocket003")
pocket4.Profile = sketch12
pocket4.Length = 40
pocket4.Reversed = True
doc.recompute()

fillet2 = body.newObject("PartDesign::Fillet", "Fillet001")
fillet2.Base = (pocket4, edges_at(pocket4, [
    (-86.947, -124.482, 51.5),
    (-86.947, -49.482, 51.5),
    (-126.947, -49.482, 51.5),
    (-126.947, -9.482, 51.5),
]))
fillet2.Radius = 2

# Sketch on YZ plane
sketch13 = body.newObject("Sketcher::SketchObject", "Sketch012")
sketch13.AttachmentSupport = (doc.getObject("YZ_Plane"), [""])
sketch13.MapMode = "FlatFace"
sketch13.AttachmentOffset = App.Placement(App.Vector(0, 0, 23.052848), App.Rotation())
add_polygon(sketch13, [(-23, 8), (-110, 8), (-110, 30), (-23, 30)])  # lines 0-3
sketch13.addConstraint(Sketcher.Constraint("Horizontal", 0))
sketch13.addConstraint(Sketcher.Constraint("Vertical", 1))
sketch13.addConstraint(Sketcher.Constraint("Horizontal", 2))
sketch13.addConstraint(Sketcher.Constraint("Vertical", 3))
sketch13.addConstraint(Sketcher.Constraint("DistanceX", 0, 2, 0, 1, Q("87 mm")))
sketch13.addConstraint(Sketcher.Constraint("DistanceY", 1, 1, 1, 2, Q("22 mm")))
sketch13.addConstraint(Sketcher.Constraint("DistanceY", -1, 1, 0, 2, Q("8 mm")))
sketch13.addConstraint(Sketcher.Constraint("DistanceX", 0, 2, -1, 1, Q("110.481744 mm")))
pocket5 = body.newObject("PartDesign::Pocket", "Pocket004")
pocket5.Profile = sketch13
pocket5.Length = 4
pocket5.Reversed = True

doc.recompute()
